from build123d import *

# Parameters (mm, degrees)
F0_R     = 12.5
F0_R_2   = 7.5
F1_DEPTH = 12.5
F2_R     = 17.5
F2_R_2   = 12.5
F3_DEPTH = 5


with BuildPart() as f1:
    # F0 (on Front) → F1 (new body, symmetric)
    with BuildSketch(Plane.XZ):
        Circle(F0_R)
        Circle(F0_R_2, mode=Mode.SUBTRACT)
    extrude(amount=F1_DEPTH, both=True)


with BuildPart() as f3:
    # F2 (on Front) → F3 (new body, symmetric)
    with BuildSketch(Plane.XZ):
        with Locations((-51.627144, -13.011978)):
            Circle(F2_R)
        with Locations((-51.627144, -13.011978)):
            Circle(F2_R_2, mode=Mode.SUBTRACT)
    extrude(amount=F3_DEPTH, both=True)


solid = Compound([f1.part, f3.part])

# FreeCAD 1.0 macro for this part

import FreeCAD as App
import Part
import Sketcher
from FreeCAD import Vector

doc = App.newDocument("Part")
body = doc.addObject("PartDesign::Body", "Body")

# Sketch on XZ plane
sketch1 = body.newObject("Sketcher::SketchObject", "Sketch")
sketch1.AttachmentSupport = (doc.getObject("XZ_Plane"), [""])
sketch1.MapMode = "FlatFace"
sketch1.addGeometry([
    Part.Circle(Vector(0, 0, 0), Vector(0, 0, 1), 12),
    Part.Circle(Vector(0, 0, 0), Vector(0, 0, 1), 8),
], False)
sketch1.addConstraint([
    Sketcher.Constraint("Coincident", 0, 3, -1, 1),
    Sketcher.Constraint("Coincident", 1, 3, -1, 1),
    Sketcher.Constraint("Diameter", 0, 25.0),
    Sketcher.Constraint("Diameter", 1, 15.0),
])
pad1 = body.newObject("PartDesign::Pad", "Pad")
pad1.Profile = sketch1
pad1.Length = 25
pad1.Midplane = True
body2 = doc.addObject("PartDesign::Body", "Body001")

# Sketch on XZ plane
sketch2 = body2.newObject("Sketcher::SketchObject", "Sketch001")
sketch2.AttachmentSupport = (doc.getObject("XZ_Plane001"), [""])
sketch2.MapMode = "FlatFace"
sketch2.addGeometry([
    Part.Circle(Vector(-52, -13, 0), Vector(0, 0, 1), 18),
    Part.Circle(Vector(-52, -13, 0), Vector(0, 0, 1), 12),
], False)
sketch2.addConstraint([
    Sketcher.Constraint("Coincident", 1, 3, 0, 3),
    Sketcher.Constraint("Diameter", 0, 35.0),
    Sketcher.Constraint("Diameter", 1, 25.0),
    Sketcher.Constraint("DistanceX", 0, 3, -1, 1, 51.627144),
    Sketcher.Constraint("DistanceY", 0, 3, -1, 1, 13.011978),
])
pad2 = body2.newObject("PartDesign::Pad", "Pad001")
pad2.Profile = sketch2
pad2.Length = 10
pad2.Midplane = True

doc.recompute()
